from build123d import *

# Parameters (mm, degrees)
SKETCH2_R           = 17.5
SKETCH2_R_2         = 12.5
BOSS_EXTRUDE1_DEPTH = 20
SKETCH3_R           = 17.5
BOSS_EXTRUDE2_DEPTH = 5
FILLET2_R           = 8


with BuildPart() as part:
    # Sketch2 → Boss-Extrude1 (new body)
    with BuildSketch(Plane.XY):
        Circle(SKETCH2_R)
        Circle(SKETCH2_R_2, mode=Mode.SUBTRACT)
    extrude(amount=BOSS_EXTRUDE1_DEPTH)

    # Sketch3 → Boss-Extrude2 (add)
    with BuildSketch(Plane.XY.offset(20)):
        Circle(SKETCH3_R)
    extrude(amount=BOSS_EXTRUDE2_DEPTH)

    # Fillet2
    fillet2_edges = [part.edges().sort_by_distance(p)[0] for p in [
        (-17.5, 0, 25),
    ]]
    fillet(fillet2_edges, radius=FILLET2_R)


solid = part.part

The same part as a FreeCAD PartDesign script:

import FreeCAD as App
import Part
import Sketcher


def edges_at(feature, points):
    """Names of the edges that pass closest to the given points."""
    edges = feature.Shape.Edges
    near = lambda p: min(range(len(edges)), key=lambda i: edges[i].distToShape(Part.Vertex(*p))[0])
    return sorted({f"Edge{near(p) + 1}" for p in points})

doc = App.newDocument("Part")
body = doc.addObject("PartDesign::Body", "Body")

# Sketch on XY plane
sketch1 = body.newObject("Sketcher::SketchObject", "Sketch")
sketch1.AttachmentSupport = (doc.getObject("XY_Plane"), [""])
sketch1.MapMode = "FlatFace"
sketch1.addGeometry(Part.Circle(App.Vector(0, 0, 0), App.Vector(0, 0, 1), 18), False)
sketch1.addGeometry(Part.Circle(App.Vector(0, 0, 0), App.Vector(0, 0, 1), 12), False)
sketch1.addConstraint(Sketcher.Constraint("Coincident", 0, 3, -1, 1))
sketch1.addConstraint(Sketcher.Constraint("Coincident", 1, 3, -1, 1))
sketch1.addConstraint(Sketcher.Constraint("Diameter", 0, 35.0))
sketch1.addConstraint(Sketcher.Constraint("Diameter", 1, 25.0))
pad1 = body.newObject("PartDesign::Pad", "Pad")
pad1.Profile = sketch1
pad1.Length = 20

# Sketch on XY plane
sketch2 = body.newObject("Sketcher::SketchObject", "Sketch001")
sketch2.AttachmentSupport = (doc.getObject("XY_Plane"), [""])
sketch2.MapMode = "FlatFace"
sketch2.AttachmentOffset = App.Placement(App.Vector(0, 0, 20), App.Rotation())
sketch2.addGeometry(Part.Circle(App.Vector(0, 0, 0), App.Vector(0, 0, 1), 18), False)
sketch2.addConstraint(Sketcher.Constraint("Coincident", 0, 3, -1, 1))
sketch2.addConstraint(Sketcher.Constraint("Diameter", 0, 35.0))
pad2 = body.newObject("PartDesign::Pad", "Pad001")
pad2.Profile = sketch2
pad2.Length = 5
doc.recompute()

fillet = body.newObject("PartDesign::Fillet", "Fillet")
fillet.Base = (pad2, edges_at(pad2, [(-17.5, 0, 25)]))
fillet.Radius = 8

doc.recompute()
